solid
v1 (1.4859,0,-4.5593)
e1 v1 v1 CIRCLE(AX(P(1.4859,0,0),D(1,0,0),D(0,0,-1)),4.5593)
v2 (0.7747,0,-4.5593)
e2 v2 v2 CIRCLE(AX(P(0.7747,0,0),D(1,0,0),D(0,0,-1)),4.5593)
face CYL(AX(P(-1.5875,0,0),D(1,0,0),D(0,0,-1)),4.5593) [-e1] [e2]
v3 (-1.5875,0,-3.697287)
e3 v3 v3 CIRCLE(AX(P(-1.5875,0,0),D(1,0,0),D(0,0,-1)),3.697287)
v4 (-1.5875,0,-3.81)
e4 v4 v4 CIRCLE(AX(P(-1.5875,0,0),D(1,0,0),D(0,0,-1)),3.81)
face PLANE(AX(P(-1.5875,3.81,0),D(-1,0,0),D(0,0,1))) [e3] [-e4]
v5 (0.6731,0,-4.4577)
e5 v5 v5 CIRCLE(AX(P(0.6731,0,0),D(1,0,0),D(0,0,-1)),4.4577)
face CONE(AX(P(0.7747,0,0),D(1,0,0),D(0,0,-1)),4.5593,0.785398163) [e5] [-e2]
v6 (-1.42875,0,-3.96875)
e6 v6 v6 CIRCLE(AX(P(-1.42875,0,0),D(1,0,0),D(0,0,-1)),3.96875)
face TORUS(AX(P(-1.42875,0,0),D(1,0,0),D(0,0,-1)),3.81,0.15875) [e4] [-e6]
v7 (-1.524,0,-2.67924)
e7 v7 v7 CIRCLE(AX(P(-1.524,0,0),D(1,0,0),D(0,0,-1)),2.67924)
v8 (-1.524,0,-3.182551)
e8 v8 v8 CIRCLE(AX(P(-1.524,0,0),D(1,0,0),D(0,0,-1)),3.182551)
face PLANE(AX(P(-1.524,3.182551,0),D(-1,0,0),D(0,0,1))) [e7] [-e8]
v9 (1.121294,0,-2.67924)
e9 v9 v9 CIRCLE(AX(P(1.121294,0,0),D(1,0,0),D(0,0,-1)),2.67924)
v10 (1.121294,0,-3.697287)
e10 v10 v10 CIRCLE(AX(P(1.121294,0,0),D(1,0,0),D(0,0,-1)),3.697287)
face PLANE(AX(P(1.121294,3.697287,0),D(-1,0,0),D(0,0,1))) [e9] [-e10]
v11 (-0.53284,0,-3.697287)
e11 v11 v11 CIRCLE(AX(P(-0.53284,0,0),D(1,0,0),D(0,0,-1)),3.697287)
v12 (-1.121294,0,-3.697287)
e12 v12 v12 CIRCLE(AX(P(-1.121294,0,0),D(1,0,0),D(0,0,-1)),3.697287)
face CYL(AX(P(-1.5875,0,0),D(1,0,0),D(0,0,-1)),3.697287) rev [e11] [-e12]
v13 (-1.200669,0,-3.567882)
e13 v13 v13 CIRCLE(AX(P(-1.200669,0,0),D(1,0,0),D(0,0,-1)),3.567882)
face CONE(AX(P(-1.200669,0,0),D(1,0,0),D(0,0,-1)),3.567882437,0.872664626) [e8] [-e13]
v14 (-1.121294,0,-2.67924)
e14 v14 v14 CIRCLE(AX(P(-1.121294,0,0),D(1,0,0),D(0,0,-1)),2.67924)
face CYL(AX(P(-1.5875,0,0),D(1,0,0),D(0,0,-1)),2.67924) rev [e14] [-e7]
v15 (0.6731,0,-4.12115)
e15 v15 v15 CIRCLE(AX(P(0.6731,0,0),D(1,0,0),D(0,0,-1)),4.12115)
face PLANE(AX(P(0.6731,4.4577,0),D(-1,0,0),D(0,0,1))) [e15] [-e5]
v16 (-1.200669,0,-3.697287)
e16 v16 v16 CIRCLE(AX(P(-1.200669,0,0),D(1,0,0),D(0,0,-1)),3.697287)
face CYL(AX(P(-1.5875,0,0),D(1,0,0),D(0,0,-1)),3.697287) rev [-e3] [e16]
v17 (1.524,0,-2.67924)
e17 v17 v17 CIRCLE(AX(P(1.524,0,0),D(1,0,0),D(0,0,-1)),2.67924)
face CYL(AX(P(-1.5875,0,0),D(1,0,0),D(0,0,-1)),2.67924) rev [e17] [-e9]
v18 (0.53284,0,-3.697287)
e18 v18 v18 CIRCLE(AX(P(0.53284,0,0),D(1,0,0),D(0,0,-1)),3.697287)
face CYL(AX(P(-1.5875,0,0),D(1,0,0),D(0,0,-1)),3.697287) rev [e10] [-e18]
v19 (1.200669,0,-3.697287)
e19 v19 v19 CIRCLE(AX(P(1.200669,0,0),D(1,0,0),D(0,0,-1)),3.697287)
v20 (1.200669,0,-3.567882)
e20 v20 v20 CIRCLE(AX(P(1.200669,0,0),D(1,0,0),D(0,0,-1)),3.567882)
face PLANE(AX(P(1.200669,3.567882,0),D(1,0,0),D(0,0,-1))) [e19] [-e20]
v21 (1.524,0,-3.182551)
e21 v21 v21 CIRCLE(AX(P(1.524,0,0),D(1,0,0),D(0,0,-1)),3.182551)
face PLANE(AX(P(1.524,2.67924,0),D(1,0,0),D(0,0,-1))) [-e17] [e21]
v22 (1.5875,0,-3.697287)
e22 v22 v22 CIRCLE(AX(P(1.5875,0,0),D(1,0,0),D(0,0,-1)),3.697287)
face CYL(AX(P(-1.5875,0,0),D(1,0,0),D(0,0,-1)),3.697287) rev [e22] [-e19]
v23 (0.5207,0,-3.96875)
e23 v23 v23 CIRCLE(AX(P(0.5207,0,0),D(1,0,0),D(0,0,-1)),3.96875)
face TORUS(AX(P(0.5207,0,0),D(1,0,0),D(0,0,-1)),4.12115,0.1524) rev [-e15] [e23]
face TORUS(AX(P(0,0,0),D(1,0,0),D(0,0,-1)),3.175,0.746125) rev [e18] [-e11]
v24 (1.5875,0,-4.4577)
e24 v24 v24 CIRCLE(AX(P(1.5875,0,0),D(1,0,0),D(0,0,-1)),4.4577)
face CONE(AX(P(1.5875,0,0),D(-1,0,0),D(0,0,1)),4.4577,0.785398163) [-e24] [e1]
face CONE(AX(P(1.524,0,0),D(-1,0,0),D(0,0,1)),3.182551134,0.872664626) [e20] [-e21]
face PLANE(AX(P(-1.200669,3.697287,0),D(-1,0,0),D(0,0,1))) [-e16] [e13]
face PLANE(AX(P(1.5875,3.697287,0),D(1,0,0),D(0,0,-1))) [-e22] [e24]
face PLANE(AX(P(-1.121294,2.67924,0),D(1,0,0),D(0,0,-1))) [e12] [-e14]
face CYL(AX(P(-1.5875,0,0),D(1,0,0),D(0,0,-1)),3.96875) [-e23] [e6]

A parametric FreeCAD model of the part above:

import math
import FreeCAD as App
import Part
import Sketcher
from FreeCAD import Vector
Q = App.Units.Quantity

doc = App.newDocument("Part")
params = doc.addObject("Spreadsheet::Sheet", "Params")
for row, (alias, value) in enumerate([
    ("sketch1_radius", "0.006 in"),
    ("sketch1_width", "0.028 in"),
    ("revolution_angle", "360 deg"),
], start=1):
    params.set(f"A{row}", alias)
    params.set(f"B{row}", "=" + value)
    params.setAlias(f"B{row}", alias)

body = doc.addObject("PartDesign::Body", "Body")

# Sketch on XY plane
sketch1 = body.newObject("Sketcher::SketchObject", "Sketch")
sketch1.AttachmentSupport = (doc.getObject("XY_Plane"), [""])
sketch1.MapMode = "FlatFace"
sketch1.addGeometry([
    Part.LineSegment(Vector(0.53, 3.7, 0), Vector(1.12, 3.7, 0)),  # 0
    Part.LineSegment(Vector(1.12, 3.7, 0), Vector(1.12, 2.68, 0)),  # 1
    Part.LineSegment(Vector(1.12, 2.68, 0), Vector(1.52, 2.68, 0)),  # 2
    Part.LineSegment(Vector(1.52, 2.68, 0), Vector(1.52, 3.18, 0)),  # 3
    Part.LineSegment(Vector(1.52, 3.18, 0), Vector(1.2, 3.57, 0)),  # 4
    Part.LineSegment(Vector(1.2, 3.57, 0), Vector(1.2, 3.7, 0)),  # 5
    Part.LineSegment(Vector(1.2, 3.7, 0), Vector(1.59, 3.7, 0)),  # 6
    Part.LineSegment(Vector(1.59, 3.7, 0), Vector(1.59, 4.46, 0)),  # 7
    Part.LineSegment(Vector(1.59, 4.46, 0), Vector(1.49, 4.56, 0)),  # 8
    Part.LineSegment(Vector(1.49, 4.56, 0), Vector(0.77, 4.56, 0)),  # 9
    Part.LineSegment(Vector(0.77, 4.56, 0), Vector(0.67, 4.46, 0)),  # 10
    Part.LineSegment(Vector(0.67, 4.46, 0), Vector(0.67, 4.12, 0)),  # 11
    Part.ArcOfCircle(Part.Circle(Vector(0.52, 4.12, 0), Vector(0, 0, 1), 0.15), math.radians(-90), math.radians(0)),  # 12
    Part.LineSegment(Vector(0.52, 3.97, 0), Vector(-1.43, 3.97, 0)),  # 13
    Part.ArcOfCircle(Part.Circle(Vector(-1.43, 3.81, 0), Vector(0, 0, 1), 0.16), math.radians(90), math.radians(180)),  # 14
    Part.LineSegment(Vector(-1.59, 3.81, 0), Vector(-1.59, 3.7, 0)),  # 15
    Part.LineSegment(Vector(-1.59, 3.7, 0), Vector(-1.2, 3.7, 0)),  # 16
    Part.LineSegment(Vector(-1.2, 3.7, 0), Vector(-1.2, 3.57, 0)),  # 17
    Part.LineSegment(Vector(-1.2, 3.57, 0), Vector(-1.52, 3.18, 0)),  # 18
    Part.LineSegment(Vector(-1.52, 3.18, 0), Vector(-1.52, 2.68, 0)),  # 19
    Part.LineSegment(Vector(-1.52, 2.68, 0), Vector(-1.12, 2.68, 0)),  # 20
    Part.LineSegment(Vector(-1.12, 2.68, 0), Vector(-1.12, 3.7, 0)),  # 21
    Part.LineSegment(Vector(-1.12, 3.7, 0), Vector(-0.53, 3.7, 0)),  # 22
    Part.ArcOfCircle(Part.Circle(Vector(0, 3.17, 0), Vector(0, 0, 1), 0.75), math.radians(44), math.radians(136)),  # 23
], False)
sketch1.addConstraint([
    Sketcher.Constraint("Coincident", 0, 2, 1, 1),
    Sketcher.Constraint("Coincident", 1, 2, 2, 1),
    Sketcher.Constraint("Coincident", 2, 2, 3, 1),
    Sketcher.Constraint("Coincident", 3, 2, 4, 1),
    Sketcher.Constraint("Coincident", 4, 2, 5, 1),
    Sketcher.Constraint("Coincident", 5, 2, 6, 1),
    Sketcher.Constraint("Coincident", 6, 2, 7, 1),
    Sketcher.Constraint("Coincident", 7, 2, 8, 1),
    Sketcher.Constraint("Coincident", 8, 2, 9, 1),
    Sketcher.Constraint("Coincident", 9, 2, 10, 1),
    Sketcher.Constraint("Coincident", 10, 2, 11, 1),
    Sketcher.Constraint("Tangent", 11, 2, 12, 2),
    Sketcher.Constraint("Tangent", 12, 1, 13, 1),
    Sketcher.Constraint("Tangent", 13, 2, 14, 1),
    Sketcher.Constraint("Tangent", 14, 2, 15, 1),
    Sketcher.Constraint("Coincident", 15, 2, 16, 1),
    Sketcher.Constraint("Coincident", 16, 2, 17, 1),
    Sketcher.Constraint("Coincident", 17, 2, 18, 1),
    Sketcher.Constraint("Coincident", 18, 2, 19, 1),
    Sketcher.Constraint("Coincident", 19, 2, 20, 1),
    Sketcher.Constraint("Coincident", 20, 2, 21, 1),
    Sketcher.Constraint("Coincident", 21, 2, 22, 1),
    Sketcher.Constraint("Coincident", 22, 2, 23, 2),
    Sketcher.Constraint("Coincident", 23, 1, 0, 1),
    Sketcher.Constraint("Horizontal", 0),
    Sketcher.Constraint("Vertical", 1),
    Sketcher.Constraint("Horizontal", 2),
    Sketcher.Constraint("Vertical", 3),
    Sketcher.Constraint("Vertical", 5),
    Sketcher.Constraint("Horizontal", 6),
    Sketcher.Constraint("Vertical", 7),
    Sketcher.Constraint("Horizontal", 9),
    Sketcher.Constraint("Vertical", 11),
    Sketcher.Constraint("Horizontal", 13),
    Sketcher.Constraint("Vertical", 15),
    Sketcher.Constraint("Horizontal", 16),
    Sketcher.Constraint("Vertical", 17),
    Sketcher.Constraint("Vertical", 19),
    Sketcher.Constraint("Horizontal", 20),
    Sketcher.Constraint("Vertical", 21),
    Sketcher.Constraint("Horizontal", 22),
    Sketcher.Constraint("Symmetric", 6, 2, 15, 2, -2),
    Sketcher.Constraint("Symmetric", 4, 2, 17, 2, -2),
    Sketcher.Constraint("Symmetric", 3, 2, 18, 2, -2),
    Sketcher.Constraint("Symmetric", 1, 2, 20, 2, -2),
    Sketcher.Constraint("Symmetric", 22, 2, 23, 1, -2),
    Sketcher.Constraint("Perpendicular", 8, 10),
    Sketcher.Constraint("Horizontal", 0, 2, 5, 2),
    Sketcher.Constraint("Horizontal", 7, 2, 10, 2),
    Sketcher.Constraint("Equal", 8, 10),
    Sketcher.Constraint("Angle", 4, Q("130 deg")),
    Sketcher.Constraint("Radius", 12, Q("0.006 in")),
    Sketcher.Constraint("DistanceX", 9, 2, 9, 1, Q("0.028 in")),
    Sketcher.Constraint("DistanceY", -1, 1, 14, 3, Q("0.15 in")),
    Sketcher.Constraint("DistanceX", -1, 1, 2, 2, Q("0.06 in")),
    Sketcher.Constraint("DistanceX", 12, 3, 9, 2, Q("0.01 in")),
    Sketcher.Constraint("DistanceY", -1, 1, 23, 3, Q("0.125 in")),
    Sketcher.Constraint("DistanceX", -1, 1, 6, 2, Q("0.0625 in")),
    Sketcher.Constraint("DistanceY", -1, 1, 12, 1, Q("0.15625 in")),
    Sketcher.Constraint("DistanceY", -1, 1, 7, 2, Q("0.1755 in")),
    Sketcher.Constraint("Radius", 23, 0.746125),
    Sketcher.Constraint("DistanceX", 6, 1, 6, 2, 0.386831),
    Sketcher.Constraint("DistanceY", 3, 1, 3, 2, 0.503312),
    Sketcher.Constraint("DistanceY", 3, 2, 12, 3, 0.938599),
    Sketcher.Constraint("DistanceX", 0, 1, 0, 2, 0.588454),
    Sketcher.Constraint("DistanceX", 2, 1, 2, 2, 0.402706),
])
sketch1.setExpression("Constraints[51]", "Params.sketch1_radius")
sketch1.setExpression("Constraints[52]", "Params.sketch1_width")
revolution = body.newObject("PartDesign::Revolution", "Revolution")
revolution.Profile = sketch1
revolution.ReferenceAxis = (sketch1, ["H_Axis"])
revolution.setExpression("Angle", "Params.revolution_angle")

doc.recompute()
